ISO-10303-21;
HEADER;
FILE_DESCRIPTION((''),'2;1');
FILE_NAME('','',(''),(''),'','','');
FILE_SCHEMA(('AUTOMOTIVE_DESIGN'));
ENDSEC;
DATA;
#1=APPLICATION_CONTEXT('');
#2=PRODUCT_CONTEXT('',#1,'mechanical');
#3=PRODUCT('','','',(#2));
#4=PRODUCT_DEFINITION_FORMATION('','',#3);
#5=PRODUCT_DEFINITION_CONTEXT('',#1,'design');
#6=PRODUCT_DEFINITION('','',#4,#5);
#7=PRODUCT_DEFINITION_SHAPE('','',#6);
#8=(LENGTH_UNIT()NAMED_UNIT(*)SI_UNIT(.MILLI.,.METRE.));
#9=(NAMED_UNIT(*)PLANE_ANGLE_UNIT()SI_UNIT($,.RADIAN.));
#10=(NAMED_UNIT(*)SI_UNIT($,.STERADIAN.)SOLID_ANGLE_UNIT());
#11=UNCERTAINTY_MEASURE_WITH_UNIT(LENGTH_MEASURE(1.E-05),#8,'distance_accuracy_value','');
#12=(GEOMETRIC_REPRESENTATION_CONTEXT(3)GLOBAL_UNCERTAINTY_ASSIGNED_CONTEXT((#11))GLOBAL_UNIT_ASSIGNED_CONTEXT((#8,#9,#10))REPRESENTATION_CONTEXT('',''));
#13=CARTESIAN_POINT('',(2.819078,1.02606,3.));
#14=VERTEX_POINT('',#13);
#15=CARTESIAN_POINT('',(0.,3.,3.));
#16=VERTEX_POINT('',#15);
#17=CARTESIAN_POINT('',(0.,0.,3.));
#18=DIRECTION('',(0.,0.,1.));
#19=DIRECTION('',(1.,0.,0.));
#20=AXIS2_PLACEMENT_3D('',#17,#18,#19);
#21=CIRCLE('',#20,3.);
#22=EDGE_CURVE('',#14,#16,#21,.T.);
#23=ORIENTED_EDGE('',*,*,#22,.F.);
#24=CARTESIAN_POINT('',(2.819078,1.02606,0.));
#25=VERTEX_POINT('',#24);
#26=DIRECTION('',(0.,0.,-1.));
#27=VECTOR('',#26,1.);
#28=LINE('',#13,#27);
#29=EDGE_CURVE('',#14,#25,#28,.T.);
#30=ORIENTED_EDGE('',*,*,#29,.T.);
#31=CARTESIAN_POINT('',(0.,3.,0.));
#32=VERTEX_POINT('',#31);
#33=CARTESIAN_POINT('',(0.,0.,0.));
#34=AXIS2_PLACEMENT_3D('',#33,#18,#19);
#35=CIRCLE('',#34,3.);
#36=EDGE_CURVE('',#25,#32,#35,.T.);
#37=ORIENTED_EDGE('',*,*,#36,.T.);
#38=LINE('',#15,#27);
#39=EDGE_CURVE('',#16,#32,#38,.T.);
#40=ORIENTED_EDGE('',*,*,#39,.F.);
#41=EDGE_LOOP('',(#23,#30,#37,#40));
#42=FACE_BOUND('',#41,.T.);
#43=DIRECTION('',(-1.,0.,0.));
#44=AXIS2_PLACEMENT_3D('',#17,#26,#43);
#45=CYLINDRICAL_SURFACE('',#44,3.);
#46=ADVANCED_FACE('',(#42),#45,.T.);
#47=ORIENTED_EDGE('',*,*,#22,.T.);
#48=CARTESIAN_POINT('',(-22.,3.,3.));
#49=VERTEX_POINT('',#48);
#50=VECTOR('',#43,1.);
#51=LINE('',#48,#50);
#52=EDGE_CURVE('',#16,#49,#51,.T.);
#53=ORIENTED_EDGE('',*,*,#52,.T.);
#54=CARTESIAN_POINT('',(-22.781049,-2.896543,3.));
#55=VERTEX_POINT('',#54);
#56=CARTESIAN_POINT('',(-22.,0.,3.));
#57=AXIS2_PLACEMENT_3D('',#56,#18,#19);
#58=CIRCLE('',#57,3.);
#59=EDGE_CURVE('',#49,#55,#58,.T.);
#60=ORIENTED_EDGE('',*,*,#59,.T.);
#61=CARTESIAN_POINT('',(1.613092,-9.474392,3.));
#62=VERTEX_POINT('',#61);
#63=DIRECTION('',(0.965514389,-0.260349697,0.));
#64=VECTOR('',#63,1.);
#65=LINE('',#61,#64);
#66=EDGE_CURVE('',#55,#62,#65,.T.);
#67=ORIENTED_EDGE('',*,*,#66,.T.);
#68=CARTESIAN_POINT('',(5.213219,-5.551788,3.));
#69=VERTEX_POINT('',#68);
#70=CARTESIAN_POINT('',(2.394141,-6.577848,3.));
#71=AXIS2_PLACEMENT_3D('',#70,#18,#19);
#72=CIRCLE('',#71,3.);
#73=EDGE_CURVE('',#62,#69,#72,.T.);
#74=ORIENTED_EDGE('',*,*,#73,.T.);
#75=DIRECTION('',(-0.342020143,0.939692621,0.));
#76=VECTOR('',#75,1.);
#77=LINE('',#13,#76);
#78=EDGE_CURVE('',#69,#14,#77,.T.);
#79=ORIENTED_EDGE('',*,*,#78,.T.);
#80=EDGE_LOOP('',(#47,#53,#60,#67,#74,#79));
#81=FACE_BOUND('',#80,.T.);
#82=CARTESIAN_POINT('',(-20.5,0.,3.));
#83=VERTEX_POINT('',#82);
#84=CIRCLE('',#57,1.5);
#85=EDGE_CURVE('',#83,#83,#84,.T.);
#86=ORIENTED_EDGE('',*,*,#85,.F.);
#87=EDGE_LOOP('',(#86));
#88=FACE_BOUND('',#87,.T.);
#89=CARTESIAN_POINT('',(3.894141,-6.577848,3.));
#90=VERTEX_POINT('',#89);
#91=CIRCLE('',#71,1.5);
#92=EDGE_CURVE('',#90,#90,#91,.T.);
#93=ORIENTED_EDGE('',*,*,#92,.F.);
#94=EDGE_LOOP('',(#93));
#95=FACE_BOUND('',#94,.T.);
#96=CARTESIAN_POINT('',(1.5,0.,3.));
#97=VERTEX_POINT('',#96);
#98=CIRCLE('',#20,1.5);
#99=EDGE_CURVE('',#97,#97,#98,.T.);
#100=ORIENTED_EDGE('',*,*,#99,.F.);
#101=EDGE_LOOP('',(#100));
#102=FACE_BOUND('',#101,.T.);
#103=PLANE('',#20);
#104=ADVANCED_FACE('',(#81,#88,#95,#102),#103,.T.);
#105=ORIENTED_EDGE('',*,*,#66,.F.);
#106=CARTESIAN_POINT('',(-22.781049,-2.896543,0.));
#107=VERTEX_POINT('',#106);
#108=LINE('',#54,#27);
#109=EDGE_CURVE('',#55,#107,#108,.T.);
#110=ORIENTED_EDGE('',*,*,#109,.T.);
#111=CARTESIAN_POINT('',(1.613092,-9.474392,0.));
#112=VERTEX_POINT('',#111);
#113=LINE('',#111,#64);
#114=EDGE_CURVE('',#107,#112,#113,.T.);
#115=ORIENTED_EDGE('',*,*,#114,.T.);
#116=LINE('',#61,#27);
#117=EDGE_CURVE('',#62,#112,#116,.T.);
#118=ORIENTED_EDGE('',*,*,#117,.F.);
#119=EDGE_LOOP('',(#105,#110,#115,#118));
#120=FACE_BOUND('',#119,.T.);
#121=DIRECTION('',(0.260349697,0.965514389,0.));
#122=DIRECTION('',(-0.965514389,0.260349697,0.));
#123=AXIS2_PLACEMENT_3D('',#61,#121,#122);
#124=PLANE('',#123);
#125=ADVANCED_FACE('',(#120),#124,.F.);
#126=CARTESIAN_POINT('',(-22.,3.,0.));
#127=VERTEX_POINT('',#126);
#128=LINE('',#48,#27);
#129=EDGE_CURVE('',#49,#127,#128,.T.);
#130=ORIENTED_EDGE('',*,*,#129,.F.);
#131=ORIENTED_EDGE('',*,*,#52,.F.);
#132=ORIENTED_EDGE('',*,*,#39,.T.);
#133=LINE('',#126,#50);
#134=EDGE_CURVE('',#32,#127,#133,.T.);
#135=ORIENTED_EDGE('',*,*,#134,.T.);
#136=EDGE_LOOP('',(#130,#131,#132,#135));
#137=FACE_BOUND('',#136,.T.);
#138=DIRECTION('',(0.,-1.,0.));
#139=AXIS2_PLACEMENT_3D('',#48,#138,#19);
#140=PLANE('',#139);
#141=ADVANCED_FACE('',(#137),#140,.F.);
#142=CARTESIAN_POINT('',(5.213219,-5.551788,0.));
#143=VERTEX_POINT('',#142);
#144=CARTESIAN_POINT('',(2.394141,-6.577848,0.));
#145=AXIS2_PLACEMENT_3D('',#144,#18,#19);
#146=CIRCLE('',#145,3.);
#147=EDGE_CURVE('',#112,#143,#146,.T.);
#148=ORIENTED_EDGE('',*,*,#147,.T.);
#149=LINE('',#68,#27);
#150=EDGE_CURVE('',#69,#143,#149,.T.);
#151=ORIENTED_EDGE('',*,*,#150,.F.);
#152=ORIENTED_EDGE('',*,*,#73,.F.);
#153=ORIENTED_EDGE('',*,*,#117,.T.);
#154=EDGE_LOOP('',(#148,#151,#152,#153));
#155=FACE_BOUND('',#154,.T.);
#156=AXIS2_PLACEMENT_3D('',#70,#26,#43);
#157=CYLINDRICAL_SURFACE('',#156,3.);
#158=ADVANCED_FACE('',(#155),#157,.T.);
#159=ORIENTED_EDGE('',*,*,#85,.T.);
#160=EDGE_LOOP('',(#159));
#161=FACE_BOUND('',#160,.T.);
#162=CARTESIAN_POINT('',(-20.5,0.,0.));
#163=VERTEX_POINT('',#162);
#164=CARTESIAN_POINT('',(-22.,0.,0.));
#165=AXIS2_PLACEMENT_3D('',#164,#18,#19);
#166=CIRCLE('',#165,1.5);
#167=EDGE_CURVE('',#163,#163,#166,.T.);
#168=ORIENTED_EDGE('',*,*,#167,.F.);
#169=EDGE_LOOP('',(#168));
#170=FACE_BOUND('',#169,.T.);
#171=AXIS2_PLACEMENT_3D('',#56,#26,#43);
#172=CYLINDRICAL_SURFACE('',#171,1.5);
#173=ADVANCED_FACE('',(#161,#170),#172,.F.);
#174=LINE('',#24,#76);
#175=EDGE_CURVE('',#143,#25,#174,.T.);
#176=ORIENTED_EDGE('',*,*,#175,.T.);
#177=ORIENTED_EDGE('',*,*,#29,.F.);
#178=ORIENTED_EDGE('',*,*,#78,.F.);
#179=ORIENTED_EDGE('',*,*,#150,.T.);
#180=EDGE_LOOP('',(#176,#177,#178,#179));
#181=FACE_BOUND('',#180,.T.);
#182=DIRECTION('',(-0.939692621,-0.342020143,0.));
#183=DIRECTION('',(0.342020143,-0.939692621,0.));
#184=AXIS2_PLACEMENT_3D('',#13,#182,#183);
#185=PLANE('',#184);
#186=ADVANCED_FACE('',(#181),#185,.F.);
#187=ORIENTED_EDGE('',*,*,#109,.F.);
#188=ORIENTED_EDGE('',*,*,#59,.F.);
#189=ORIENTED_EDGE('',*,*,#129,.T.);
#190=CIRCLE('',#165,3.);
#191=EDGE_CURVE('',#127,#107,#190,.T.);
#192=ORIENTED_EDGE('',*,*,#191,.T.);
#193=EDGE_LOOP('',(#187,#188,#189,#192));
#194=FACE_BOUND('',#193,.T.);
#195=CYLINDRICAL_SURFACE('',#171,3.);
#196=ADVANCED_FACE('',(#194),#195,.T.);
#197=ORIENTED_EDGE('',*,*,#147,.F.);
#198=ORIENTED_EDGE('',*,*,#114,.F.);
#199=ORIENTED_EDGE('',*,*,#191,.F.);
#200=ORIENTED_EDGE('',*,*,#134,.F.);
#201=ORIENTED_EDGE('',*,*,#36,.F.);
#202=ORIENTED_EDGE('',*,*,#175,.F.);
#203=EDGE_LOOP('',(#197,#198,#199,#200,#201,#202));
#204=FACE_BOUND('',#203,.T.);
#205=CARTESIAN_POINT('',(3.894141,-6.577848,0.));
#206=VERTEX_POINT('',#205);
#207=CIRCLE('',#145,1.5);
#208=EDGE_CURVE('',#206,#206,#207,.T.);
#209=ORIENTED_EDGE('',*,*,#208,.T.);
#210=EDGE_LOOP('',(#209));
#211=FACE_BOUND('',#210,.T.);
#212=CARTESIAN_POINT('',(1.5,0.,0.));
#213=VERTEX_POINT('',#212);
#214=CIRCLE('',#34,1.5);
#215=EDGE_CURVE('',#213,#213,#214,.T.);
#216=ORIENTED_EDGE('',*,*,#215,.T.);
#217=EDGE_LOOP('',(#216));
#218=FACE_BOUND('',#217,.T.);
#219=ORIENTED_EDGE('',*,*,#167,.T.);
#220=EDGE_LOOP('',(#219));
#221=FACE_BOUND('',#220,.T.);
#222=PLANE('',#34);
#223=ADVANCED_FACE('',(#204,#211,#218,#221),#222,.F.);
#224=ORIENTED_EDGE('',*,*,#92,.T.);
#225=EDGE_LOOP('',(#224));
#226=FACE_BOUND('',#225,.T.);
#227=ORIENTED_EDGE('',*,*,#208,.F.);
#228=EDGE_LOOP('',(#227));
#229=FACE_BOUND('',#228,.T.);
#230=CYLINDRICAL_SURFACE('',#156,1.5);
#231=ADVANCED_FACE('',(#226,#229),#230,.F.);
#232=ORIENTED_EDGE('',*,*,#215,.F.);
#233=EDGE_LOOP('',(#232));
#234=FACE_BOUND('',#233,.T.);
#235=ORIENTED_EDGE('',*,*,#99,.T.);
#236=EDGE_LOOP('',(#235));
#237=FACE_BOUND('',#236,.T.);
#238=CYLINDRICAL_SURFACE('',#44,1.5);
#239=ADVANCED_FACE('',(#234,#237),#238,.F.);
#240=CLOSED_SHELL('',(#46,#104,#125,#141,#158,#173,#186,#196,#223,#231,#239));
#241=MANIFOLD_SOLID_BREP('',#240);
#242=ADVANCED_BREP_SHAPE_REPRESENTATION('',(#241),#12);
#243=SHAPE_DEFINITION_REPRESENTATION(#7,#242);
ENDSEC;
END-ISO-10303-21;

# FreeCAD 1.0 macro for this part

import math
import FreeCAD as App
import Part
import Sketcher
Q = App.Units.Quantity

doc = App.newDocument("Part")
params = doc.addObject("Spreadsheet::Sheet", "Params")
for row, (alias, value) in enumerate([
    ("sketch1_diameter", "3 mm"),
    ("sketch1_radius", "3 mm"),
    ("sketch1_width", "22 mm"),
    ("sketch1_length", "7 mm"),
    ("pad1_length", "3 mm"),
], start=1):
    params.set(f"A{row}", alias)
    params.set(f"B{row}", "=" + value)
    params.setAlias(f"B{row}", alias)

body = doc.addObject("PartDesign::Body", "Body")

# Sketch on XY plane
sketch1 = body.newObject("Sketcher::SketchObject", "Sketch")
sketch1.AttachmentSupport = (doc.getObject("XY_Plane"), [""])
sketch1.MapMode = "FlatFace"
sketch1.addGeometry([
    Part.LineSegment(App.Vector(0, 3, 0), App.Vector(-22, 3, 0)),  # 0
    Part.ArcOfCircle(Part.Circle(App.Vector(-22, 0, 0), App.Vector(0, 0, 1), 3), math.radians(90), math.radians(255)),  # 1
    Part.LineSegment(App.Vector(-22.8, -2.9, 0), App.Vector(1.6, -9.5, 0)),  # 2
    Part.ArcOfCircle(Part.Circle(App.Vector(2.4, -6.6, 0), App.Vector(0, 0, 1), 3), math.radians(-105), math.radians(20)),  # 3
    Part.LineSegment(App.Vector(5.2, -5.6, 0), App.Vector(2.8, 1, 0)),  # 4
    Part.ArcOfCircle(Part.Circle(App.Vector(0, 0, 0), App.Vector(0, 0, 1), 3), math.radians(20), math.radians(90)),  # 5
    Part.Circle(App.Vector(2.4, -6.6, 0), App.Vector(0, 0, 1), 1.5),  # 6
    Part.Circle(App.Vector(0, 0, 0), App.Vector(0, 0, 1), 1.5),  # 7
    Part.Circle(App.Vector(-22, 0, 0), App.Vector(0, 0, 1), 1.5),  # 8
], False)
sketch1.addConstraint([
    Sketcher.Constraint("Tangent", 0, 2, 1, 1),
    Sketcher.Constraint("Tangent", 1, 2, 2, 1),
    Sketcher.Constraint("Tangent", 2, 2, 3, 1),
    Sketcher.Constraint("Tangent", 3, 2, 4, 1),
    Sketcher.Constraint("Tangent", 4, 2, 5, 1),
    Sketcher.Constraint("Tangent", 5, 2, 0, 1),
    Sketcher.Constraint("Horizontal", 0),
    Sketcher.Constraint("Coincident", 5, 3, -1, 1),
    Sketcher.Constraint("Coincident", 7, 3, -1, 1),
    Sketcher.Constraint("Coincident", 6, 3, 3, 3),
    Sketcher.Constraint("Coincident", 8, 3, 1, 3),
    Sketcher.Constraint("Equal", 1, 3),
    Sketcher.Constraint("Equal", 3, 5),
    Sketcher.Constraint("Equal", 6, 7),
    Sketcher.Constraint("Equal", 7, 8),
    Sketcher.Constraint("Diameter", 6, 3.0),
    Sketcher.Constraint("Radius", 1, 3.0),
    Sketcher.Constraint("DistanceX", 0, 2, 0, 1, 22.0),
    Sketcher.Constraint("Angle", 4, Q("110 deg")),
    Sketcher.Constraint("Distance", 4, 7.0),
])
sketch1.setExpression("Constraints[15]", "Params.sketch1_diameter")
sketch1.setExpression("Constraints[16]", "Params.sketch1_radius")
sketch1.setExpression("Constraints[17]", "Params.sketch1_width")
sketch1.setExpression("Constraints[19]", "Params.sketch1_length")
pad1 = body.newObject("PartDesign::Pad", "Pad")
pad1.Profile = sketch1
pad1.setExpression("Length", "Params.pad1_length")

doc.recompute()
